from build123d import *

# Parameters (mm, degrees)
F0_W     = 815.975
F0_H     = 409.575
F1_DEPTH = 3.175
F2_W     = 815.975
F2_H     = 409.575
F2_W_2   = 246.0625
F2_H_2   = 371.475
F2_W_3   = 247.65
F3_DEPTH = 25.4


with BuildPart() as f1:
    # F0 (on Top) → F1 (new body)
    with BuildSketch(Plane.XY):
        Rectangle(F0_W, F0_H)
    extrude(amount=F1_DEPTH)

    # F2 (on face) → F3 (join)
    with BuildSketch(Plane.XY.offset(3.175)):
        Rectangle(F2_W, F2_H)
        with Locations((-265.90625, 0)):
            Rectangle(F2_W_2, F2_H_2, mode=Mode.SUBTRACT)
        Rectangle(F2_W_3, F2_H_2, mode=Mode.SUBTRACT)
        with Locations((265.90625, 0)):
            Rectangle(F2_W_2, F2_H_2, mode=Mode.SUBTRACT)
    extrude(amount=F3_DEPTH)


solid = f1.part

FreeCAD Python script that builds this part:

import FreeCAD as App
import Part
import Sketcher
Q = App.Units.Quantity


def add_polygon(sketch, points):
    """Adds a closed chain of lines whose ends are joined by coincident constraints."""
    first, n = sketch.GeometryCount, len(points)
    for a, b in zip(points, points[1:] + points[:1]):
        sketch.addGeometry(Part.LineSegment(App.Vector(*a, 0), App.Vector(*b, 0)), False)
    for i in range(n):
        sketch.addConstraint(Sketcher.Constraint("Coincident", first + i, 2, first + (i + 1) % n, 1))

doc = App.newDocument("Part")
body = doc.addObject("PartDesign::Body", "Body")

# Sketch on XY plane
sketch1 = body.newObject("Sketcher::SketchObject", "Sketch")
sketch1.AttachmentSupport = (doc.getObject("XY_Plane"), [""])
sketch1.MapMode = "FlatFace"
add_polygon(sketch1, [(-408, 205), (-408, -205), (408, -205), (408, 205)])  # lines 0-3
sketch1.addConstraint([
    Sketcher.Constraint("Vertical", 0),
    Sketcher.Constraint("Horizontal", 1),
    Sketcher.Constraint("Vertical", 2),
    Sketcher.Constraint("Horizontal", 3),
    Sketcher.Constraint("Symmetric", 0, 2, 2, 2, -1, 1),
    Sketcher.Constraint("DistanceX", 1, 1, 1, 2, Q("32.125 in")),
    Sketcher.Constraint("DistanceY", 0, 2, 0, 1, Q("16.125 in")),
])
pad1 = body.newObject("PartDesign::Pad", "Pad")
pad1.Profile = sketch1
pad1.Length = Q("0.125 in")

# Sketch on XY plane
sketch2 = body.newObject("Sketcher::SketchObject", "Sketch001")
sketch2.AttachmentSupport = (doc.getObject("XY_Plane"), [""])
sketch2.MapMode = "FlatFace"
sketch2.AttachmentOffset = App.Placement(App.Vector(0, 0, 0.125 * 25.4), App.Rotation())
add_polygon(sketch2, [(-408, 205), (-408, -205), (408, -205), (408, 205)])  # lines 0-3
add_polygon(sketch2, [(-143, -186), (-389, -186), (-389, 186), (-143, 186)])  # lines 4-7
add_polygon(sketch2, [(124, -186), (-124, -186), (-124, 186), (124, 186)])  # lines 8-11
add_polygon(sketch2, [(389, -186), (143, -186), (143, 186), (389, 186)])  # lines 12-15
sketch2.addConstraint([
    Sketcher.Constraint("Vertical", 0),
    Sketcher.Constraint("Horizontal", 1),
    Sketcher.Constraint("Vertical", 2),
    Sketcher.Constraint("Horizontal", 3),
    Sketcher.Constraint("Horizontal", 4),
    Sketcher.Constraint("Vertical", 5),
    Sketcher.Constraint("Horizontal", 6),
    Sketcher.Constraint("Vertical", 7),
    Sketcher.Constraint("Horizontal", 8),
    Sketcher.Constraint("Vertical", 9),
    Sketcher.Constraint("Horizontal", 10),
    Sketcher.Constraint("Vertical", 11),
    Sketcher.Constraint("Horizontal", 12),
    Sketcher.Constraint("Vertical", 13),
    Sketcher.Constraint("Horizontal", 14),
    Sketcher.Constraint("Vertical", 15),
    Sketcher.Constraint("Symmetric", 0, 2, 2, 2, -1, 1),
    Sketcher.Constraint("Symmetric", 8, 2, 10, 2, -1, 1),
    Sketcher.Constraint("Symmetric", 6, 2, 12, 2, -1, 1),
    Sketcher.Constraint("Symmetric", 4, 2, 14, 2, -1, 1),
    Sketcher.Constraint("Horizontal", 7, 2, 8, 2),
    Sketcher.Constraint("Horizontal", 6, 2, 9, 2),
    Sketcher.Constraint("DistanceX", 8, 2, 8, 1, Q("9.75 in")),
    Sketcher.Constraint("DistanceX", 6, 2, 10, 2, Q("10.5 in")),
    Sketcher.Constraint("DistanceX", 1, 1, 1, 2, Q("32.125 in")),
    Sketcher.Constraint("DistanceX", 4, 2, 4, 1, Q("9.6875 in")),
    Sketcher.Constraint("DistanceY", 0, 2, 0, 1, Q("16.125 in")),
    Sketcher.Constraint("DistanceY", 5, 1, 5, 2, Q("14.625 in")),
])
pad2 = body.newObject("PartDesign::Pad", "Pad001")
pad2.Profile = sketch2
pad2.Length = Q("1 in")

doc.recompute()
